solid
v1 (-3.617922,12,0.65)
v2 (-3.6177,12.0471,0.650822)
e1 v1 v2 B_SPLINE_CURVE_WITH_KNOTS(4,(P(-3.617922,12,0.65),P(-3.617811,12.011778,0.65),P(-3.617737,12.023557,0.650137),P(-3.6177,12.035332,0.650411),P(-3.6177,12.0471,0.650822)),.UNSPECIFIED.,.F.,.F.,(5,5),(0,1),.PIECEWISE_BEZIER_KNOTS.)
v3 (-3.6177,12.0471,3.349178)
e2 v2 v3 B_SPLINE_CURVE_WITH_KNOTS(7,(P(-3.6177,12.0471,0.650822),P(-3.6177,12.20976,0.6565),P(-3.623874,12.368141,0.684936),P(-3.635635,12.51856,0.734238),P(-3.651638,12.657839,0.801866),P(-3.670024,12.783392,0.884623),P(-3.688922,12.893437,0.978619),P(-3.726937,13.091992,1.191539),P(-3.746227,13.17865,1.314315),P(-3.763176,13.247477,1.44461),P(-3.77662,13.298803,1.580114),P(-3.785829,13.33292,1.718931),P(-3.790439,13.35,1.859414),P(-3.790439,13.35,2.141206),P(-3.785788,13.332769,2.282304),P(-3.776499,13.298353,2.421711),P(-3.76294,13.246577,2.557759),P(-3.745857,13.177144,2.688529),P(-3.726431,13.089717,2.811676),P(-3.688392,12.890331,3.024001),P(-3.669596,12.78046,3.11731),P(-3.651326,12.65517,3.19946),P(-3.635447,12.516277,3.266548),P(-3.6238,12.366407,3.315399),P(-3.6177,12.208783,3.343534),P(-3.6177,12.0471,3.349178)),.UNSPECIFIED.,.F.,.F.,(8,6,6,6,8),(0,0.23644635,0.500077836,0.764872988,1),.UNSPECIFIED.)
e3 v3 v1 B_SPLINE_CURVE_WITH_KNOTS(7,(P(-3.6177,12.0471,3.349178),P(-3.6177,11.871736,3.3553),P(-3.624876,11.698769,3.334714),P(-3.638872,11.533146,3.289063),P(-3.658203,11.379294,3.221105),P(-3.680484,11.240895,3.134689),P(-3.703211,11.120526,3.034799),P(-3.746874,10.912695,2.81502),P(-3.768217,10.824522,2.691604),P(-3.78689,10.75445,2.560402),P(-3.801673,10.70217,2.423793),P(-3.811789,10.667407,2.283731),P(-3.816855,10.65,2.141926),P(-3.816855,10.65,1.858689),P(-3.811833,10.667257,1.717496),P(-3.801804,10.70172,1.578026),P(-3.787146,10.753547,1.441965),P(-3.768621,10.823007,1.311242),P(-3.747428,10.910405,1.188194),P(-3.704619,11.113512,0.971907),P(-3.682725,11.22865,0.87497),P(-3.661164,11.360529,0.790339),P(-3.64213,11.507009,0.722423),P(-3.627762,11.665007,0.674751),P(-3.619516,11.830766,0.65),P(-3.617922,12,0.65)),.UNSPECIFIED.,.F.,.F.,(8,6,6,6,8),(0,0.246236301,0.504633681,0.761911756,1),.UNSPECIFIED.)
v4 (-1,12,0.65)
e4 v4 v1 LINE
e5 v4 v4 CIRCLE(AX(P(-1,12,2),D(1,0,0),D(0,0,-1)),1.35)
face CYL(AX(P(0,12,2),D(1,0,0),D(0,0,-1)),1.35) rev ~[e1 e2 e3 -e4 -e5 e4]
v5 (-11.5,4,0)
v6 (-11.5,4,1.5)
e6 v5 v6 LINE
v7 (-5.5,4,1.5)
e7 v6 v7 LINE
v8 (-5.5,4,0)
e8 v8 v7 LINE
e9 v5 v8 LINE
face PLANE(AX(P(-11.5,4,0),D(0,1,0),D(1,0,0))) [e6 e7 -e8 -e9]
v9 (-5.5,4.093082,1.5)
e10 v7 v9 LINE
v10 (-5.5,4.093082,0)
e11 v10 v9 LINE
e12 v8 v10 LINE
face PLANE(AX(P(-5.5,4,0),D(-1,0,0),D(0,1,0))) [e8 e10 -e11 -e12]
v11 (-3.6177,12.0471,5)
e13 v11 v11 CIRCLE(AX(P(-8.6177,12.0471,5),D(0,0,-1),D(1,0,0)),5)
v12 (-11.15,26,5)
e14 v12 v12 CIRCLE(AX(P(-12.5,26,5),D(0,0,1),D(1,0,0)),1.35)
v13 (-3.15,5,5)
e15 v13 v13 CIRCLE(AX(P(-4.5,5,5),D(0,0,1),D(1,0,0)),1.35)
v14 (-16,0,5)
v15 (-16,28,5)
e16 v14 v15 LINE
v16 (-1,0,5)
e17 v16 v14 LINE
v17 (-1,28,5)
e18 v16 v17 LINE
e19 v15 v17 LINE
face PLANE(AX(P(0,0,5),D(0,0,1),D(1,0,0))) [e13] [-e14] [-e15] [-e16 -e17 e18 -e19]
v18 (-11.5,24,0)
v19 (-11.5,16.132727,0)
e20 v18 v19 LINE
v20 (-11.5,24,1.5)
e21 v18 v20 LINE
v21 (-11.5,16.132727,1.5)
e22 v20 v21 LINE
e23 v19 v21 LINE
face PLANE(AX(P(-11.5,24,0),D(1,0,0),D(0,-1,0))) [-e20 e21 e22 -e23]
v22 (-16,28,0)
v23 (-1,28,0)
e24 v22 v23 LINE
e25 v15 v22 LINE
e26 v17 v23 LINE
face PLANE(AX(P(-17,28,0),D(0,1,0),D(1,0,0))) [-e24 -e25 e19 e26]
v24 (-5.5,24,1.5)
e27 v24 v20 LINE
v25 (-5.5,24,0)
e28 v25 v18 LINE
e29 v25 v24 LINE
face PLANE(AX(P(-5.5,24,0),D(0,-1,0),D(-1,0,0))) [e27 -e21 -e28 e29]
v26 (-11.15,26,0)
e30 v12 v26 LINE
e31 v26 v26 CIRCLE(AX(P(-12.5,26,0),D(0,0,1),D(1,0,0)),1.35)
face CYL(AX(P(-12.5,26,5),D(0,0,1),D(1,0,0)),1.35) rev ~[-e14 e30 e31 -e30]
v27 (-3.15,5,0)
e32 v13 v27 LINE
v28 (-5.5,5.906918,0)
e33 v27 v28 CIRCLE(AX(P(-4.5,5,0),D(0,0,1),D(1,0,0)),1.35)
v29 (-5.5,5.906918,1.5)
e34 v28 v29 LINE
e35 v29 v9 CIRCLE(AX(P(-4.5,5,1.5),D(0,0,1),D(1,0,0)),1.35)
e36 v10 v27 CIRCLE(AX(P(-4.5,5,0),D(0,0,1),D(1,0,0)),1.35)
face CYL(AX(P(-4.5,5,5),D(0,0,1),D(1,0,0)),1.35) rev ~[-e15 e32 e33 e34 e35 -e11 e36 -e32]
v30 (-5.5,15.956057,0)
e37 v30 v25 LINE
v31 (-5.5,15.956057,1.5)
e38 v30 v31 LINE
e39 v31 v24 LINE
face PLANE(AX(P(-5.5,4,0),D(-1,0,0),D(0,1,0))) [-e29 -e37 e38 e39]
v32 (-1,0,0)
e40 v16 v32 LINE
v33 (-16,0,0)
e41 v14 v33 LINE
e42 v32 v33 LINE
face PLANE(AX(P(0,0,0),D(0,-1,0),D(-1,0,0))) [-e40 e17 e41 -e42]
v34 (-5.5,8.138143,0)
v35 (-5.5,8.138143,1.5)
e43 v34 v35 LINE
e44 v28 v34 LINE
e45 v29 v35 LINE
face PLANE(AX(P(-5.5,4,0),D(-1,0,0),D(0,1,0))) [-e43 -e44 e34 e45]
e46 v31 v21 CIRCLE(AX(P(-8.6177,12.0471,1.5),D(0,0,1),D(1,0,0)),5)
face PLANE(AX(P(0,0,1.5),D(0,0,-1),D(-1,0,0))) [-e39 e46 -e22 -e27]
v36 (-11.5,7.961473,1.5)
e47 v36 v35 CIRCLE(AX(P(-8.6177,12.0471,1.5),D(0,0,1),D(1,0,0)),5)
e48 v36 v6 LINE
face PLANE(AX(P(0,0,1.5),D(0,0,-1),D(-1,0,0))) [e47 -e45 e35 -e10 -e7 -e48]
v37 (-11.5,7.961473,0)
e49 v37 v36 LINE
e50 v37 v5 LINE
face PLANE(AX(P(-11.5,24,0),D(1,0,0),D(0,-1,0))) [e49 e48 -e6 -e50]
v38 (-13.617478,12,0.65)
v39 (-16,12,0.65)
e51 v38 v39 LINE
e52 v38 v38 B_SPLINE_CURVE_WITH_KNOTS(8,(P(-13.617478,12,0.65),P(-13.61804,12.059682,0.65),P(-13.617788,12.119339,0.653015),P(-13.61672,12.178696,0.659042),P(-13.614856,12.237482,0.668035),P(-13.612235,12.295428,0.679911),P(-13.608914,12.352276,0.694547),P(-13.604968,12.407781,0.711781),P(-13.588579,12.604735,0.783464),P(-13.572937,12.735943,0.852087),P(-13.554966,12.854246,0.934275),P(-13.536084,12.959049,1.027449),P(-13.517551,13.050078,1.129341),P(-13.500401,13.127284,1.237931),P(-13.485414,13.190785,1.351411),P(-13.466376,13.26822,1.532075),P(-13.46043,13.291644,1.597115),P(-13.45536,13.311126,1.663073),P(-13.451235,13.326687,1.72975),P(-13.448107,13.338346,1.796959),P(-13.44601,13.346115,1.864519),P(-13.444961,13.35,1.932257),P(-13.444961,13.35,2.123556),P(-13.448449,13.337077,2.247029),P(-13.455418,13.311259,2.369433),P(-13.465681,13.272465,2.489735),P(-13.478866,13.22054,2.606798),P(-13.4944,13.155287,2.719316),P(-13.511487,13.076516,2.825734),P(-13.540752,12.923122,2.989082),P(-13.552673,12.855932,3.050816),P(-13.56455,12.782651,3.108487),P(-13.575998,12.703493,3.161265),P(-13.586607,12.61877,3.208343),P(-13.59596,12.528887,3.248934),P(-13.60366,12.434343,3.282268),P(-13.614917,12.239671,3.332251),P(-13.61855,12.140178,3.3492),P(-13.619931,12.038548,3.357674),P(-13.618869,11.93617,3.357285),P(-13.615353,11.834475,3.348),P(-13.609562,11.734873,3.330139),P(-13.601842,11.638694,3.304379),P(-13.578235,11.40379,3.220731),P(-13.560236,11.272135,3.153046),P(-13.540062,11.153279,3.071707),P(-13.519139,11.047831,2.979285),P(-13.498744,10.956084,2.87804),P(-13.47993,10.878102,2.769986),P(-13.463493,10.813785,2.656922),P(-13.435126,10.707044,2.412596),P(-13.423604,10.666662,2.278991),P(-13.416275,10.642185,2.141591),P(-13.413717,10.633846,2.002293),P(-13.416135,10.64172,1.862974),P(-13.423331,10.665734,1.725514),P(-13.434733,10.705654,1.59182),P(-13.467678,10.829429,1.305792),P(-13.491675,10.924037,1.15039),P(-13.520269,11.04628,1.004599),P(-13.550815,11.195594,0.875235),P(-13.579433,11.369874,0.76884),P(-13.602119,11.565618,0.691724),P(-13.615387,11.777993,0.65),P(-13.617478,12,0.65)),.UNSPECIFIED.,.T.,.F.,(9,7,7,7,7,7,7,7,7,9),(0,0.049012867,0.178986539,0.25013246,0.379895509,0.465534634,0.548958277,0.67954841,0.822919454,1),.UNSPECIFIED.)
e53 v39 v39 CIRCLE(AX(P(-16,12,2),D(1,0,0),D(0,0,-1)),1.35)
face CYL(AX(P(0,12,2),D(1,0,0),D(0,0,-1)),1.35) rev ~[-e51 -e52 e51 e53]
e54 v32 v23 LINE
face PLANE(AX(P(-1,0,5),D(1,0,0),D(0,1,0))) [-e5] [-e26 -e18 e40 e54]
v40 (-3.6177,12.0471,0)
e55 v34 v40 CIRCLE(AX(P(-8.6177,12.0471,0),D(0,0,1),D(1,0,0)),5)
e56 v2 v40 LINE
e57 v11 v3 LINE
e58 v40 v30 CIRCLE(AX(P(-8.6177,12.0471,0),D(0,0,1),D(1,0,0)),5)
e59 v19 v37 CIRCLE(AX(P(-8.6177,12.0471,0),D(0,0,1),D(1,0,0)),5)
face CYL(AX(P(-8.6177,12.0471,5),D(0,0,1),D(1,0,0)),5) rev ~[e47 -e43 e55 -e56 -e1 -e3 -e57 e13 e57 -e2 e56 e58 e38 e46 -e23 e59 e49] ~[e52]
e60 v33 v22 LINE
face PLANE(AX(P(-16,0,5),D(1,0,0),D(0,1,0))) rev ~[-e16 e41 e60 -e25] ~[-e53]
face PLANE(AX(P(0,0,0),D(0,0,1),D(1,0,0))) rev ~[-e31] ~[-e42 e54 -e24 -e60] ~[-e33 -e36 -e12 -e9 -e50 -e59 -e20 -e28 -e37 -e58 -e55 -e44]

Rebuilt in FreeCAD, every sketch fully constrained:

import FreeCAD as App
import Part
import Sketcher

V = App.Vector
Q = App.Units.Quantity

doc = App.newDocument("Part")
body = doc.addObject("PartDesign::Body", "Body")

sketch1 = body.newObject("Sketcher::SketchObject", "Sketch")
sketch1.AttachmentSupport = (doc.getObject("XY_Plane"), [""])
sketch1.MapMode = "FlatFace"
sketch1.addGeometry([
    Part.LineSegment(V(0, 28, 0), V(-17, 28, 0)),
    Part.LineSegment(V(-17, 28, 0), V(-17, 0, 0)),
    Part.LineSegment(V(-17, 0, 0), V(0, 0, 0)),
    Part.LineSegment(V(0, 0, 0), V(0, 28, 0)),
], False)
sketch1.addConstraint([
    Sketcher.Constraint("Coincident", 0, 2, 1, 1),
    Sketcher.Constraint("Coincident", 1, 2, 2, 1),
    Sketcher.Constraint("Coincident", 2, 2, 3, 1),
    Sketcher.Constraint("Coincident", 3, 2, 0, 1),
    Sketcher.Constraint("Horizontal", 0),
    Sketcher.Constraint("Vertical", 1),
    Sketcher.Constraint("Horizontal", 2),
    Sketcher.Constraint("Vertical", 3),
    Sketcher.Constraint("Coincident", 2, 2, -1, 1),
    Sketcher.Constraint("DistanceX", 0, 2, 0, 1, Q("17 mm")),
    Sketcher.Constraint("DistanceY", 1, 2, 1, 1, Q("28 mm")),
])
pad1 = body.newObject("PartDesign::Pad", "Pad")
pad1.Profile = sketch1
pad1.Length = 5

sketch2 = body.newObject("Sketcher::SketchObject", "Sketch001")
sketch2.AttachmentSupport = (doc.getObject("XY_Plane"), [""])
sketch2.MapMode = "FlatFace"
sketch2.addGeometry([
    Part.LineSegment(V(-12, 4, 0), V(-12, 24, 0)),
    Part.LineSegment(V(-12, 24, 0), V(-6, 24, 0)),
    Part.LineSegment(V(-6, 24, 0), V(-6, 4, 0)),
    Part.LineSegment(V(-6, 4, 0), V(-12, 4, 0)),
], False)
sketch2.addConstraint([
    Sketcher.Constraint("Coincident", 0, 2, 1, 1),
    Sketcher.Constraint("Coincident", 1, 2, 2, 1),
    Sketcher.Constraint("Coincident", 2, 2, 3, 1),
    Sketcher.Constraint("Coincident", 3, 2, 0, 1),
    Sketcher.Constraint("Vertical", 0),
    Sketcher.Constraint("Horizontal", 1),
    Sketcher.Constraint("Vertical", 2),
    Sketcher.Constraint("Horizontal", 3),
    Sketcher.Constraint("DistanceX", 1, 1, 1, 2, Q("6 mm")),
    Sketcher.Constraint("DistanceY", 0, 1, 0, 2, Q("20 mm")),
    Sketcher.Constraint("DistanceY", -1, 1, 2, 2, Q("4 mm")),
    Sketcher.Constraint("DistanceX", 1, 2, -1, 1, Q("5.5 mm")),
])
pocket1 = body.newObject("PartDesign::Pocket", "Pocket")
pocket1.Profile = sketch2
pocket1.Length = 1.5
pocket1.Reversed = True

sketch3 = body.newObject("Sketcher::SketchObject", "Sketch002")
sketch3.AttachmentSupport = (doc.getObject("XY_Plane"), [""])
sketch3.MapMode = "FlatFace"
sketch3.AttachmentOffset = App.Placement(V(0, 0, 5), App.Rotation())
sketch3.addGeometry(Part.Circle(V(-9, 12, 0), V(0, 0, 1), 5), False)
sketch3.addConstraint([
    Sketcher.Constraint("Diameter", 0, Q("10 mm")),
    Sketcher.Constraint("DistanceY", -1, 1, 0, 3, Q("12.047 mm")),
    Sketcher.Constraint("DistanceX", 0, 3, -1, 1, Q("8.6177 mm")),
])
pocket2 = body.newObject("PartDesign::Pocket", "Pocket001")
pocket2.Profile = sketch3
pocket2.Type = "ThroughAll"

sketch4 = body.newObject("Sketcher::SketchObject", "Sketch003")
sketch4.AttachmentSupport = (doc.getObject("XY_Plane"), [""])
sketch4.MapMode = "FlatFace"
sketch4.AttachmentOffset = App.Placement(V(0, 0, 5), App.Rotation())
sketch4.addGeometry(Part.Circle(V(-12.5, 26, 0), V(0, 0, 1), 1.4), False)
sketch4.addConstraint([
    Sketcher.Constraint("Diameter", 0, Q("2.7 mm")),
    Sketcher.Constraint("DistanceY", -1, 1, 0, 3, Q("26 mm")),
    Sketcher.Constraint("DistanceX", 0, 3, -1, 1, Q("12.5 mm")),
])
pocket3 = body.newObject("PartDesign::Pocket", "Pocket002")
pocket3.Profile = sketch4
pocket3.Type = "ThroughAll"

sketch5 = body.newObject("Sketcher::SketchObject", "Sketch004")
sketch5.AttachmentSupport = (doc.getObject("XY_Plane"), [""])
sketch5.MapMode = "FlatFace"
sketch5.AttachmentOffset = App.Placement(V(0, 0, 5), App.Rotation())
sketch5.addGeometry(Part.Circle(V(-4.5, 5, 0), V(0, 0, 1), 1.4), False)
sketch5.addConstraint([
    Sketcher.Constraint("Diameter", 0, Q("2.7 mm")),
    Sketcher.Constraint("DistanceY", -1, 1, 0, 3, Q("5 mm")),
    Sketcher.Constraint("DistanceX", 0, 3, -1, 1, Q("4.5 mm")),
])
pocket4 = body.newObject("PartDesign::Pocket", "Pocket003")
pocket4.Profile = sketch5
pocket4.Type = "ThroughAll"

sketch6 = body.newObject("Sketcher::SketchObject", "Sketch005")
sketch6.AttachmentSupport = (doc.getObject("YZ_Plane"), [""])
sketch6.MapMode = "FlatFace"
sketch6.addGeometry(Part.Circle(V(12, 2, 0), V(0, 0, 1), 1.4), False)
sketch6.addConstraint([
    Sketcher.Constraint("Diameter", 0, Q("2.7 mm")),
    Sketcher.Constraint("DistanceX", -1, 1, 0, 3, Q("12 mm")),
    Sketcher.Constraint("DistanceY", -1, 1, 0, 3, Q("2 mm")),
])
pocket5 = body.newObject("PartDesign::Pocket", "Pocket004")
pocket5.Profile = sketch6
pocket5.Type = "ThroughAll"

sketch7 = body.newObject("Sketcher::SketchObject", "Sketch006")
sketch7.AttachmentSupport = (doc.getObject("XY_Plane"), [""])
sketch7.MapMode = "FlatFace"
sketch7.AttachmentOffset = App.Placement(V(0, 0, 5), App.Rotation())
sketch7.addGeometry([
    Part.LineSegment(V(0, 0, 0), V(0, 28, 0)),
    Part.LineSegment(V(0, 28, 0), V(-1, 28, 0)),
    Part.LineSegment(V(-1, 28, 0), V(-1, 0, 0)),
    Part.LineSegment(V(-1, 0, 0), V(0, 0, 0)),
    Part.LineSegment(V(-16, 0, 0), V(-16, 28, 0)),
    Part.LineSegment(V(-16, 28, 0), V(-17, 28, 0)),
    Part.LineSegment(V(-17, 28, 0), V(-17, 0, 0)),
    Part.LineSegment(V(-17, 0, 0), V(-16, 0, 0)),
], False)
sketch7.addConstraint([
    Sketcher.Constraint("Coincident", 0, 2, 1, 1),
    Sketcher.Constraint("Coincident", 1, 2, 2, 1),
    Sketcher.Constraint("Coincident", 2, 2, 3, 1),
    Sketcher.Constraint("Coincident", 3, 2, 0, 1),
    Sketcher.Constraint("Coincident", 4, 2, 5, 1),
    Sketcher.Constraint("Coincident", 5, 2, 6, 1),
    Sketcher.Constraint("Coincident", 6, 2, 7, 1),
    Sketcher.Constraint("Coincident", 7, 2, 4, 1),
    Sketcher.Constraint("Vertical", 0),
    Sketcher.Constraint("Horizontal", 1),
    Sketcher.Constraint("Vertical", 2),
    Sketcher.Constraint("Horizontal", 3),
    Sketcher.Constraint("Vertical", 4),
    Sketcher.Constraint("Horizontal", 5),
    Sketcher.Constraint("Vertical", 6),
    Sketcher.Constraint("Horizontal", 7),
    Sketcher.Constraint("Coincident", 3, 2, -1, 1),
    Sketcher.Constraint("PointOnObject", 6, 2, -1),
    Sketcher.Constraint("Horizontal", 1, 2, 4, 2),
    Sketcher.Constraint("Equal", 3, 5),
    Sketcher.Constraint("DistanceX", 1, 2, 1, 1, Q("1 mm")),
    Sketcher.Constraint("DistanceY", 0, 1, 0, 2, Q("28 mm")),
    Sketcher.Constraint("DistanceX", 4, 2, -1, 1, Q("16 mm")),
])
pocket6 = body.newObject("PartDesign::Pocket", "Pocket005")
pocket6.Profile = sketch7
pocket6.Type = "ThroughAll"

doc.recompute()
